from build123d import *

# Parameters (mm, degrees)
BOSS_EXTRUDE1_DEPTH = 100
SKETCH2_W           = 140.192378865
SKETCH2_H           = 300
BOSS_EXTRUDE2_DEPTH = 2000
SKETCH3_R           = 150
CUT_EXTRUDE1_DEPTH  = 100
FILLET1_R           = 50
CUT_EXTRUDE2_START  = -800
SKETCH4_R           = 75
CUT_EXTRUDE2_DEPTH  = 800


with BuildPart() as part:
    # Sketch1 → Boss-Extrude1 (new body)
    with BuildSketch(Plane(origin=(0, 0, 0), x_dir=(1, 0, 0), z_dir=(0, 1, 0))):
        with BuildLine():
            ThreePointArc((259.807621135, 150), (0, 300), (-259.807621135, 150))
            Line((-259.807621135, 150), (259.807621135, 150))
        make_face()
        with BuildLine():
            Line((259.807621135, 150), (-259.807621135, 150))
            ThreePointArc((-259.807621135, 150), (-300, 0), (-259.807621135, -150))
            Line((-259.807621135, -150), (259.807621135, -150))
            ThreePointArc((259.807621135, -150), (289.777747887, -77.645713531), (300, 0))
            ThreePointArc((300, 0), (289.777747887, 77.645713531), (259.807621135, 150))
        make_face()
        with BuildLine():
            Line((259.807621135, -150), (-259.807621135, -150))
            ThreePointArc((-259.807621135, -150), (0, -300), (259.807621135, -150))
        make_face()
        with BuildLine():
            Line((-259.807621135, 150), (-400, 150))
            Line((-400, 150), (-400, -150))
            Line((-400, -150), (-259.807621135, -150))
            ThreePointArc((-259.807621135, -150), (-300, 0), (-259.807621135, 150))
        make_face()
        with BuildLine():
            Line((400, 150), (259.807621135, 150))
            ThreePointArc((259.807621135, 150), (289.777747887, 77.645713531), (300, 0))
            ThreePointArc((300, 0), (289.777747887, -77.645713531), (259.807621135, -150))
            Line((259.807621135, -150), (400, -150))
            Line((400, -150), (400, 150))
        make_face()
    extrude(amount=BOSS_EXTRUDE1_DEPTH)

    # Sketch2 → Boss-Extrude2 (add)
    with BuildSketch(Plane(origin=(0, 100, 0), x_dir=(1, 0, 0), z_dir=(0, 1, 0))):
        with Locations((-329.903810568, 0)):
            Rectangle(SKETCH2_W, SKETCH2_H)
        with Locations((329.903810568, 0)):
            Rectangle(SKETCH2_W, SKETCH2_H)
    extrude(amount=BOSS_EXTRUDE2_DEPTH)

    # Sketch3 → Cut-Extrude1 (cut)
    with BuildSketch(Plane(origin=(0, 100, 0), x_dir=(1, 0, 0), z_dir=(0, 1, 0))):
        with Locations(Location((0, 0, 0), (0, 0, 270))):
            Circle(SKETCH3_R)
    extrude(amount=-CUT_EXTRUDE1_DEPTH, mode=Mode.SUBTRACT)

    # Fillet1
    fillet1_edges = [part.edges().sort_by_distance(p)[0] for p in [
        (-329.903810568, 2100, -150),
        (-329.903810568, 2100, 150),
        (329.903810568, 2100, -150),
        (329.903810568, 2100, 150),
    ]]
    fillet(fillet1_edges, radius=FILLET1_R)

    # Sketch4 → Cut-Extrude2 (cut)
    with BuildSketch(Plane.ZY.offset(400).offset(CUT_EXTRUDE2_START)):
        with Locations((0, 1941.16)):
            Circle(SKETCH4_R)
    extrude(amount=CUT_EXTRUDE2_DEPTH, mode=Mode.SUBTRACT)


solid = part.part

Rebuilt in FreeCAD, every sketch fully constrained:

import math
import FreeCAD as App
import Part
import Sketcher

V = App.Vector


def edges_at(feature, points):
    """Names of the edges that pass closest to the given points."""
    edges = feature.Shape.Edges
    near = lambda p: min(range(len(edges)), key=lambda i: edges[i].distToShape(Part.Vertex(*p))[0])
    return sorted({f"Edge{near(p) + 1}" for p in points})


def add_polygon(sketch, points):
    """Adds a closed chain of lines whose ends are joined by coincident constraints."""
    first, n = sketch.GeometryCount, len(points)
    for a, b in zip(points, points[1:] + points[:1]):
        sketch.addGeometry(Part.LineSegment(App.Vector(*a, 0), App.Vector(*b, 0)), False)
    for i in range(n):
        sketch.addConstraint(Sketcher.Constraint("Coincident", first + i, 2, first + (i + 1) % n, 1))

doc = App.newDocument("Part")
body = doc.addObject("PartDesign::Body", "Body")

sketch1 = body.newObject("Sketcher::SketchObject", "Sketch")
sketch1.AttachmentSupport = (doc.getObject("XZ_Plane"), [""])
sketch1.MapMode = "FlatFace"
sketch1.addGeometry([
    Part.ArcOfCircle(Part.Circle(V(0, 0, 0), V(0, 0, 1), 300), math.radians(-150), math.radians(-30)),
    Part.LineSegment(V(-259.807621, -150, 0), V(-400, -150, 0)),
    Part.LineSegment(V(-400, -150, 0), V(-400, 150, 0)),
    Part.LineSegment(V(-400, 150, 0), V(-259.807621, 150, 0)),
    Part.ArcOfCircle(Part.Circle(V(0, 0, 0), V(0, 0, 1), 300), math.radians(30), math.radians(150)),
    Part.LineSegment(V(259.807621, 150, 0), V(400, 150, 0)),
    Part.LineSegment(V(400, 150, 0), V(400, -150, 0)),
    Part.LineSegment(V(400, -150, 0), V(259.807621, -150, 0)),
], False)
sketch1.addConstraint([
    Sketcher.Constraint("Coincident", 0, 1, 1, 1),
    Sketcher.Constraint("Coincident", 1, 2, 2, 1),
    Sketcher.Constraint("Coincident", 2, 2, 3, 1),
    Sketcher.Constraint("Coincident", 3, 2, 4, 2),
    Sketcher.Constraint("Coincident", 4, 1, 5, 1),
    Sketcher.Constraint("Coincident", 5, 2, 6, 1),
    Sketcher.Constraint("Coincident", 6, 2, 7, 1),
    Sketcher.Constraint("Coincident", 7, 2, 0, 2),
    Sketcher.Constraint("Horizontal", 1),
    Sketcher.Constraint("Vertical", 2),
    Sketcher.Constraint("Horizontal", 3),
    Sketcher.Constraint("Horizontal", 5),
    Sketcher.Constraint("Vertical", 6),
    Sketcher.Constraint("Horizontal", 7),
    Sketcher.Constraint("Coincident", 0, 3, -1, 1),
    Sketcher.Constraint("Coincident", 4, 3, -1, 1),
    Sketcher.Constraint("Equal", 0, 4),
    Sketcher.Constraint("Symmetric", 1, 2, 5, 2, -1, 1),
    Sketcher.Constraint("Horizontal", 3, 2, 4, 1),
    Sketcher.Constraint("Horizontal", 1, 2, 6, 2),
    Sketcher.Constraint("Radius", 0, 300.0),
    Sketcher.Constraint("DistanceY", 2, 1, 2, 2, 300.0),
    Sketcher.Constraint("DistanceX", 1, 2, -1, 1, 400.0),
])
pad1 = body.newObject("PartDesign::Pad", "Pad")
pad1.Profile = sketch1
pad1.Length = 100
pad1.Reversed = True

sketch2 = body.newObject("Sketcher::SketchObject", "Sketch001")
sketch2.AttachmentSupport = (doc.getObject("XZ_Plane"), [""])
sketch2.MapMode = "FlatFace"
sketch2.AttachmentOffset = App.Placement(V(0, 0, -100), App.Rotation())
add_polygon(sketch2, [(-400, -150), (-400, 150), (-259.807621, 150), (-259.807621, -150)])
add_polygon(sketch2, [(259.807621, -150), (259.807621, 150), (400, 150), (400, -150)])
sketch2.addConstraint([
    Sketcher.Constraint("Vertical", 0),
    Sketcher.Constraint("Horizontal", 1),
    Sketcher.Constraint("Vertical", 2),
    Sketcher.Constraint("Horizontal", 3),
    Sketcher.Constraint("Vertical", 4),
    Sketcher.Constraint("Horizontal", 5),
    Sketcher.Constraint("Vertical", 6),
    Sketcher.Constraint("Horizontal", 7),
    Sketcher.Constraint("Symmetric", 2, 2, 4, 2, -1, 1),
    Sketcher.Constraint("Symmetric", 0, 2, 6, 2, -1, 1),
    Sketcher.Constraint("Horizontal", 1, 2, 4, 2),
    Sketcher.Constraint("DistanceY", 0, 1, 0, 2, 300.0),
    Sketcher.Constraint("DistanceX", 0, 2, -1, 1, 400.0),
    Sketcher.Constraint("DistanceX", 1, 1, 1, 2, 140.192379),
])
pad2 = body.newObject("PartDesign::Pad", "Pad001")
pad2.Profile = sketch2
pad2.Length = 2000
pad2.Reversed = True

sketch3 = body.newObject("Sketcher::SketchObject", "Sketch002")
sketch3.AttachmentSupport = (doc.getObject("XZ_Plane"), [""])
sketch3.MapMode = "FlatFace"
sketch3.AttachmentOffset = App.Placement(V(0, 0, -100), App.Rotation())
sketch3.addGeometry(Part.Circle(V(0, 0, 0), V(0, 0, 1), 150), False)
sketch3.addConstraint([
    Sketcher.Constraint("Coincident", 0, 3, -1, 1),
    Sketcher.Constraint("Diameter", 0, 300.0),
])
pocket1 = body.newObject("PartDesign::Pocket", "Pocket")
pocket1.Profile = sketch3
pocket1.Length = 100
pocket1.Reversed = True
doc.recompute()

fillet = body.newObject("PartDesign::Fillet", "Fillet")
fillet.Base = (pocket1, edges_at(pocket1, [
    (-329.904, 2100, -150),
    (-329.904, 2100, 150),
    (329.904, 2100, -150),
    (329.904, 2100, 150),
]))
fillet.Radius = 50

sketch4 = body.newObject("Sketcher::SketchObject", "Sketch003")
sketch4.AttachmentSupport = (doc.getObject("YZ_Plane"), [""])
sketch4.MapMode = "FlatFace"
sketch4.AttachmentOffset = App.Placement(V(0, 0, 400), App.Rotation())
sketch4.addGeometry(Part.Circle(V(1941.16, 0, 0), V(0, 0, 1), 75), False)
sketch4.addConstraint([
    Sketcher.Constraint("PointOnObject", 0, 3, -1),
    Sketcher.Constraint("Diameter", 0, 150.0),
    Sketcher.Constraint("DistanceX", -1, 1, 0, 3, 1941.16),
])
pocket2 = body.newObject("PartDesign::Pocket", "Pocket001")
pocket2.Profile = sketch4
pocket2.Length = 800

doc.recompute()
